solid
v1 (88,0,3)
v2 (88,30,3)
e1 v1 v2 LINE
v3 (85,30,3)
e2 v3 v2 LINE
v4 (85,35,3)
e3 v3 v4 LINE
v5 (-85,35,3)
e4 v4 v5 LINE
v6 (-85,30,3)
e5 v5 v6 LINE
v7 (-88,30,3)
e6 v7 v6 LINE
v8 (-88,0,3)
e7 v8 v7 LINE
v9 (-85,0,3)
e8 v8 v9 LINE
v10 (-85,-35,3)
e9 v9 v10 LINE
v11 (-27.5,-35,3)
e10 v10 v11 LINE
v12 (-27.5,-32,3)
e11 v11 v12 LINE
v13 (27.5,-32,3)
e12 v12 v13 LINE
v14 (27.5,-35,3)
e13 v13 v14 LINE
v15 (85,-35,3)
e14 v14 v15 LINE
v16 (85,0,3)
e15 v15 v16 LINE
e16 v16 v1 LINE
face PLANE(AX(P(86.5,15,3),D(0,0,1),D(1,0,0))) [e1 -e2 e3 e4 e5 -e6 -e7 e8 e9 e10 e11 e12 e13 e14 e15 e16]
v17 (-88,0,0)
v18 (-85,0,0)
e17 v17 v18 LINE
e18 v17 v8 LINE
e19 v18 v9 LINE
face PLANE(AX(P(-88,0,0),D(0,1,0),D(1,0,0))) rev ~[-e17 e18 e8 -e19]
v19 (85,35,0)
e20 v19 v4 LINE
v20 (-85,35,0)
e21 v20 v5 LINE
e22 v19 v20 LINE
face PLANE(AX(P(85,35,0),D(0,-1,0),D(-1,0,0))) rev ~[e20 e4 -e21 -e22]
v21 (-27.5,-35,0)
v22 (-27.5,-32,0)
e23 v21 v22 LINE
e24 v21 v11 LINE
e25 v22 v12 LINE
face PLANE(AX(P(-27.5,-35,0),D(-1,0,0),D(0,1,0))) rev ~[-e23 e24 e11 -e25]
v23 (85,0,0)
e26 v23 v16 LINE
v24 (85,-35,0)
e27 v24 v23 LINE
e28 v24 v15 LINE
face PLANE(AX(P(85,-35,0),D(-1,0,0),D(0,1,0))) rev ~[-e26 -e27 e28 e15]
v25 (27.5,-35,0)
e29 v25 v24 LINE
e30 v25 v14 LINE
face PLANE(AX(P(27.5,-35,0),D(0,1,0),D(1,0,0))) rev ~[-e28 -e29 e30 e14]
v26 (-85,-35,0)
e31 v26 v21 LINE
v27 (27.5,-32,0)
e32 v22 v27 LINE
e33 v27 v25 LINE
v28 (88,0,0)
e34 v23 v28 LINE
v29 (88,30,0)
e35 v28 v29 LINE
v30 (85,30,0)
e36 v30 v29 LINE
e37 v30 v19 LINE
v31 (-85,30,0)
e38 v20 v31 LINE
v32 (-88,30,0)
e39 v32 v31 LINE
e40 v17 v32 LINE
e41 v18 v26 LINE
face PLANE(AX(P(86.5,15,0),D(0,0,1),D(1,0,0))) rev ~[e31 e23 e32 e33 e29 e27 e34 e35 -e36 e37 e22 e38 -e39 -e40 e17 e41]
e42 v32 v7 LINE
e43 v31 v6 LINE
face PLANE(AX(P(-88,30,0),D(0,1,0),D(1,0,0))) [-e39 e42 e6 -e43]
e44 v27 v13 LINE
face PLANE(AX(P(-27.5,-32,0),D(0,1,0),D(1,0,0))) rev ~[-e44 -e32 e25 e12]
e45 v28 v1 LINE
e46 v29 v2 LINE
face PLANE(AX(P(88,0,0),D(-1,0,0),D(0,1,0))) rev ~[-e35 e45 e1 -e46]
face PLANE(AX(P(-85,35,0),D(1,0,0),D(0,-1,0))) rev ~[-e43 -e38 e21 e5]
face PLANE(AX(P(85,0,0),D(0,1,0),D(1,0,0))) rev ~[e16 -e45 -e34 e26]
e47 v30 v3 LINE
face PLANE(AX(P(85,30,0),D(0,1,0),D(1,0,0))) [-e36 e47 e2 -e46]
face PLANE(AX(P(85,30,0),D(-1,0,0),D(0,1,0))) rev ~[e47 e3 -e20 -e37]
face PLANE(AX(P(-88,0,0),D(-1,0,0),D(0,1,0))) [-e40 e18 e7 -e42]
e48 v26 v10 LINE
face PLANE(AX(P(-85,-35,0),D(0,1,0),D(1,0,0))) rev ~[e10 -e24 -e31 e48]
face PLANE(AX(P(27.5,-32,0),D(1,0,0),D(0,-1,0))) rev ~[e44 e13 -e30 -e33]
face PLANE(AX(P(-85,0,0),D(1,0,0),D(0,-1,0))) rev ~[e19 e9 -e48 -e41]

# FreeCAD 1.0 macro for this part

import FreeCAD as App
import Part
import Sketcher
Q = App.Units.Quantity


def add_polygon(sketch, points):
    """Adds a closed chain of lines whose ends are joined by coincident constraints."""
    first, n = sketch.GeometryCount, len(points)
    for a, b in zip(points, points[1:] + points[:1]):
        sketch.addGeometry(Part.LineSegment(App.Vector(*a, 0), App.Vector(*b, 0)), False)
    for i in range(n):
        sketch.addConstraint(Sketcher.Constraint("Coincident", first + i, 2, first + (i + 1) % n, 1))

doc = App.newDocument("Part")
params = doc.addObject("Spreadsheet::Sheet", "Params")
for row, (alias, value) in enumerate([
    ("sketch1_width", "3 mm"),
    ("sketch1_width2", "170 mm"),
    ("sketch1_width3", "55 mm"),
    ("sketch1_height", "30 mm"),
    ("sketch1_height2", "5 mm"),
    ("pad1_length", "3 mm"),
], start=1):
    params.set(f"A{row}", alias)
    params.set(f"B{row}", "=" + value)
    params.setAlias(f"B{row}", alias)

body = doc.addObject("PartDesign::Body", "Body")

# Sketch on XY plane
sketch1 = body.newObject("Sketcher::SketchObject", "Sketch")
sketch1.AttachmentSupport = (doc.getObject("XY_Plane"), [""])
sketch1.MapMode = "FlatFace"
add_polygon(sketch1, [(85, 0), (88, 0), (88, 30), (85, 30), (85, 35), (-85, 35), (-85, 30), (-88, 30), (-88, 0), (-85, 0), (-85, -35), (-27.5, -35), (-27.5, -32), (27.5, -32), (27.5, -35), (85, -35)])  # lines 0-15
sketch1.addConstraint([
    Sketcher.Constraint("Horizontal", 0),
    Sketcher.Constraint("Vertical", 1),
    Sketcher.Constraint("Horizontal", 2),
    Sketcher.Constraint("Vertical", 3),
    Sketcher.Constraint("Horizontal", 4),
    Sketcher.Constraint("Vertical", 5),
    Sketcher.Constraint("Horizontal", 6),
    Sketcher.Constraint("Vertical", 7),
    Sketcher.Constraint("Horizontal", 8),
    Sketcher.Constraint("Vertical", 9),
    Sketcher.Constraint("Horizontal", 10),
    Sketcher.Constraint("Vertical", 11),
    Sketcher.Constraint("Horizontal", 12),
    Sketcher.Constraint("Vertical", 13),
    Sketcher.Constraint("Horizontal", 14),
    Sketcher.Constraint("Vertical", 15),
    Sketcher.Constraint("Symmetric", 0, 2, 7, 2, -1, 1),
    Sketcher.Constraint("Symmetric", 3, 2, 9, 2, -1, 1),
    Sketcher.Constraint("Symmetric", 4, 2, 14, 2, -1, 1),
    Sketcher.Constraint("Symmetric", 2, 2, 5, 2, -2),
    Sketcher.Constraint("PointOnObject", 0, 2, -1),
    Sketcher.Constraint("Equal", 10, 14),
    Sketcher.Constraint("Equal", 8, 11),
    Sketcher.Constraint("DistanceX", 0, 1, 0, 2, Q("3 mm")),
    Sketcher.Constraint("DistanceX", 4, 2, 4, 1, Q("170 mm")),
    Sketcher.Constraint("DistanceX", 12, 1, 12, 2, Q("55 mm")),
    Sketcher.Constraint("DistanceY", 1, 1, 1, 2, Q("30 mm")),
    Sketcher.Constraint("DistanceY", 3, 1, 3, 2, Q("5 mm")),
])
sketch1.setExpression("Constraints[39]", "Params.sketch1_width")
sketch1.setExpression("Constraints[40]", "Params.sketch1_width2")
sketch1.setExpression("Constraints[41]", "Params.sketch1_width3")
sketch1.setExpression("Constraints[42]", "Params.sketch1_height")
sketch1.setExpression("Constraints[43]", "Params.sketch1_height2")
pad1 = body.newObject("PartDesign::Pad", "Pad")
pad1.Profile = sketch1
pad1.setExpression("Length", "Params.pad1_length")

doc.recompute()
